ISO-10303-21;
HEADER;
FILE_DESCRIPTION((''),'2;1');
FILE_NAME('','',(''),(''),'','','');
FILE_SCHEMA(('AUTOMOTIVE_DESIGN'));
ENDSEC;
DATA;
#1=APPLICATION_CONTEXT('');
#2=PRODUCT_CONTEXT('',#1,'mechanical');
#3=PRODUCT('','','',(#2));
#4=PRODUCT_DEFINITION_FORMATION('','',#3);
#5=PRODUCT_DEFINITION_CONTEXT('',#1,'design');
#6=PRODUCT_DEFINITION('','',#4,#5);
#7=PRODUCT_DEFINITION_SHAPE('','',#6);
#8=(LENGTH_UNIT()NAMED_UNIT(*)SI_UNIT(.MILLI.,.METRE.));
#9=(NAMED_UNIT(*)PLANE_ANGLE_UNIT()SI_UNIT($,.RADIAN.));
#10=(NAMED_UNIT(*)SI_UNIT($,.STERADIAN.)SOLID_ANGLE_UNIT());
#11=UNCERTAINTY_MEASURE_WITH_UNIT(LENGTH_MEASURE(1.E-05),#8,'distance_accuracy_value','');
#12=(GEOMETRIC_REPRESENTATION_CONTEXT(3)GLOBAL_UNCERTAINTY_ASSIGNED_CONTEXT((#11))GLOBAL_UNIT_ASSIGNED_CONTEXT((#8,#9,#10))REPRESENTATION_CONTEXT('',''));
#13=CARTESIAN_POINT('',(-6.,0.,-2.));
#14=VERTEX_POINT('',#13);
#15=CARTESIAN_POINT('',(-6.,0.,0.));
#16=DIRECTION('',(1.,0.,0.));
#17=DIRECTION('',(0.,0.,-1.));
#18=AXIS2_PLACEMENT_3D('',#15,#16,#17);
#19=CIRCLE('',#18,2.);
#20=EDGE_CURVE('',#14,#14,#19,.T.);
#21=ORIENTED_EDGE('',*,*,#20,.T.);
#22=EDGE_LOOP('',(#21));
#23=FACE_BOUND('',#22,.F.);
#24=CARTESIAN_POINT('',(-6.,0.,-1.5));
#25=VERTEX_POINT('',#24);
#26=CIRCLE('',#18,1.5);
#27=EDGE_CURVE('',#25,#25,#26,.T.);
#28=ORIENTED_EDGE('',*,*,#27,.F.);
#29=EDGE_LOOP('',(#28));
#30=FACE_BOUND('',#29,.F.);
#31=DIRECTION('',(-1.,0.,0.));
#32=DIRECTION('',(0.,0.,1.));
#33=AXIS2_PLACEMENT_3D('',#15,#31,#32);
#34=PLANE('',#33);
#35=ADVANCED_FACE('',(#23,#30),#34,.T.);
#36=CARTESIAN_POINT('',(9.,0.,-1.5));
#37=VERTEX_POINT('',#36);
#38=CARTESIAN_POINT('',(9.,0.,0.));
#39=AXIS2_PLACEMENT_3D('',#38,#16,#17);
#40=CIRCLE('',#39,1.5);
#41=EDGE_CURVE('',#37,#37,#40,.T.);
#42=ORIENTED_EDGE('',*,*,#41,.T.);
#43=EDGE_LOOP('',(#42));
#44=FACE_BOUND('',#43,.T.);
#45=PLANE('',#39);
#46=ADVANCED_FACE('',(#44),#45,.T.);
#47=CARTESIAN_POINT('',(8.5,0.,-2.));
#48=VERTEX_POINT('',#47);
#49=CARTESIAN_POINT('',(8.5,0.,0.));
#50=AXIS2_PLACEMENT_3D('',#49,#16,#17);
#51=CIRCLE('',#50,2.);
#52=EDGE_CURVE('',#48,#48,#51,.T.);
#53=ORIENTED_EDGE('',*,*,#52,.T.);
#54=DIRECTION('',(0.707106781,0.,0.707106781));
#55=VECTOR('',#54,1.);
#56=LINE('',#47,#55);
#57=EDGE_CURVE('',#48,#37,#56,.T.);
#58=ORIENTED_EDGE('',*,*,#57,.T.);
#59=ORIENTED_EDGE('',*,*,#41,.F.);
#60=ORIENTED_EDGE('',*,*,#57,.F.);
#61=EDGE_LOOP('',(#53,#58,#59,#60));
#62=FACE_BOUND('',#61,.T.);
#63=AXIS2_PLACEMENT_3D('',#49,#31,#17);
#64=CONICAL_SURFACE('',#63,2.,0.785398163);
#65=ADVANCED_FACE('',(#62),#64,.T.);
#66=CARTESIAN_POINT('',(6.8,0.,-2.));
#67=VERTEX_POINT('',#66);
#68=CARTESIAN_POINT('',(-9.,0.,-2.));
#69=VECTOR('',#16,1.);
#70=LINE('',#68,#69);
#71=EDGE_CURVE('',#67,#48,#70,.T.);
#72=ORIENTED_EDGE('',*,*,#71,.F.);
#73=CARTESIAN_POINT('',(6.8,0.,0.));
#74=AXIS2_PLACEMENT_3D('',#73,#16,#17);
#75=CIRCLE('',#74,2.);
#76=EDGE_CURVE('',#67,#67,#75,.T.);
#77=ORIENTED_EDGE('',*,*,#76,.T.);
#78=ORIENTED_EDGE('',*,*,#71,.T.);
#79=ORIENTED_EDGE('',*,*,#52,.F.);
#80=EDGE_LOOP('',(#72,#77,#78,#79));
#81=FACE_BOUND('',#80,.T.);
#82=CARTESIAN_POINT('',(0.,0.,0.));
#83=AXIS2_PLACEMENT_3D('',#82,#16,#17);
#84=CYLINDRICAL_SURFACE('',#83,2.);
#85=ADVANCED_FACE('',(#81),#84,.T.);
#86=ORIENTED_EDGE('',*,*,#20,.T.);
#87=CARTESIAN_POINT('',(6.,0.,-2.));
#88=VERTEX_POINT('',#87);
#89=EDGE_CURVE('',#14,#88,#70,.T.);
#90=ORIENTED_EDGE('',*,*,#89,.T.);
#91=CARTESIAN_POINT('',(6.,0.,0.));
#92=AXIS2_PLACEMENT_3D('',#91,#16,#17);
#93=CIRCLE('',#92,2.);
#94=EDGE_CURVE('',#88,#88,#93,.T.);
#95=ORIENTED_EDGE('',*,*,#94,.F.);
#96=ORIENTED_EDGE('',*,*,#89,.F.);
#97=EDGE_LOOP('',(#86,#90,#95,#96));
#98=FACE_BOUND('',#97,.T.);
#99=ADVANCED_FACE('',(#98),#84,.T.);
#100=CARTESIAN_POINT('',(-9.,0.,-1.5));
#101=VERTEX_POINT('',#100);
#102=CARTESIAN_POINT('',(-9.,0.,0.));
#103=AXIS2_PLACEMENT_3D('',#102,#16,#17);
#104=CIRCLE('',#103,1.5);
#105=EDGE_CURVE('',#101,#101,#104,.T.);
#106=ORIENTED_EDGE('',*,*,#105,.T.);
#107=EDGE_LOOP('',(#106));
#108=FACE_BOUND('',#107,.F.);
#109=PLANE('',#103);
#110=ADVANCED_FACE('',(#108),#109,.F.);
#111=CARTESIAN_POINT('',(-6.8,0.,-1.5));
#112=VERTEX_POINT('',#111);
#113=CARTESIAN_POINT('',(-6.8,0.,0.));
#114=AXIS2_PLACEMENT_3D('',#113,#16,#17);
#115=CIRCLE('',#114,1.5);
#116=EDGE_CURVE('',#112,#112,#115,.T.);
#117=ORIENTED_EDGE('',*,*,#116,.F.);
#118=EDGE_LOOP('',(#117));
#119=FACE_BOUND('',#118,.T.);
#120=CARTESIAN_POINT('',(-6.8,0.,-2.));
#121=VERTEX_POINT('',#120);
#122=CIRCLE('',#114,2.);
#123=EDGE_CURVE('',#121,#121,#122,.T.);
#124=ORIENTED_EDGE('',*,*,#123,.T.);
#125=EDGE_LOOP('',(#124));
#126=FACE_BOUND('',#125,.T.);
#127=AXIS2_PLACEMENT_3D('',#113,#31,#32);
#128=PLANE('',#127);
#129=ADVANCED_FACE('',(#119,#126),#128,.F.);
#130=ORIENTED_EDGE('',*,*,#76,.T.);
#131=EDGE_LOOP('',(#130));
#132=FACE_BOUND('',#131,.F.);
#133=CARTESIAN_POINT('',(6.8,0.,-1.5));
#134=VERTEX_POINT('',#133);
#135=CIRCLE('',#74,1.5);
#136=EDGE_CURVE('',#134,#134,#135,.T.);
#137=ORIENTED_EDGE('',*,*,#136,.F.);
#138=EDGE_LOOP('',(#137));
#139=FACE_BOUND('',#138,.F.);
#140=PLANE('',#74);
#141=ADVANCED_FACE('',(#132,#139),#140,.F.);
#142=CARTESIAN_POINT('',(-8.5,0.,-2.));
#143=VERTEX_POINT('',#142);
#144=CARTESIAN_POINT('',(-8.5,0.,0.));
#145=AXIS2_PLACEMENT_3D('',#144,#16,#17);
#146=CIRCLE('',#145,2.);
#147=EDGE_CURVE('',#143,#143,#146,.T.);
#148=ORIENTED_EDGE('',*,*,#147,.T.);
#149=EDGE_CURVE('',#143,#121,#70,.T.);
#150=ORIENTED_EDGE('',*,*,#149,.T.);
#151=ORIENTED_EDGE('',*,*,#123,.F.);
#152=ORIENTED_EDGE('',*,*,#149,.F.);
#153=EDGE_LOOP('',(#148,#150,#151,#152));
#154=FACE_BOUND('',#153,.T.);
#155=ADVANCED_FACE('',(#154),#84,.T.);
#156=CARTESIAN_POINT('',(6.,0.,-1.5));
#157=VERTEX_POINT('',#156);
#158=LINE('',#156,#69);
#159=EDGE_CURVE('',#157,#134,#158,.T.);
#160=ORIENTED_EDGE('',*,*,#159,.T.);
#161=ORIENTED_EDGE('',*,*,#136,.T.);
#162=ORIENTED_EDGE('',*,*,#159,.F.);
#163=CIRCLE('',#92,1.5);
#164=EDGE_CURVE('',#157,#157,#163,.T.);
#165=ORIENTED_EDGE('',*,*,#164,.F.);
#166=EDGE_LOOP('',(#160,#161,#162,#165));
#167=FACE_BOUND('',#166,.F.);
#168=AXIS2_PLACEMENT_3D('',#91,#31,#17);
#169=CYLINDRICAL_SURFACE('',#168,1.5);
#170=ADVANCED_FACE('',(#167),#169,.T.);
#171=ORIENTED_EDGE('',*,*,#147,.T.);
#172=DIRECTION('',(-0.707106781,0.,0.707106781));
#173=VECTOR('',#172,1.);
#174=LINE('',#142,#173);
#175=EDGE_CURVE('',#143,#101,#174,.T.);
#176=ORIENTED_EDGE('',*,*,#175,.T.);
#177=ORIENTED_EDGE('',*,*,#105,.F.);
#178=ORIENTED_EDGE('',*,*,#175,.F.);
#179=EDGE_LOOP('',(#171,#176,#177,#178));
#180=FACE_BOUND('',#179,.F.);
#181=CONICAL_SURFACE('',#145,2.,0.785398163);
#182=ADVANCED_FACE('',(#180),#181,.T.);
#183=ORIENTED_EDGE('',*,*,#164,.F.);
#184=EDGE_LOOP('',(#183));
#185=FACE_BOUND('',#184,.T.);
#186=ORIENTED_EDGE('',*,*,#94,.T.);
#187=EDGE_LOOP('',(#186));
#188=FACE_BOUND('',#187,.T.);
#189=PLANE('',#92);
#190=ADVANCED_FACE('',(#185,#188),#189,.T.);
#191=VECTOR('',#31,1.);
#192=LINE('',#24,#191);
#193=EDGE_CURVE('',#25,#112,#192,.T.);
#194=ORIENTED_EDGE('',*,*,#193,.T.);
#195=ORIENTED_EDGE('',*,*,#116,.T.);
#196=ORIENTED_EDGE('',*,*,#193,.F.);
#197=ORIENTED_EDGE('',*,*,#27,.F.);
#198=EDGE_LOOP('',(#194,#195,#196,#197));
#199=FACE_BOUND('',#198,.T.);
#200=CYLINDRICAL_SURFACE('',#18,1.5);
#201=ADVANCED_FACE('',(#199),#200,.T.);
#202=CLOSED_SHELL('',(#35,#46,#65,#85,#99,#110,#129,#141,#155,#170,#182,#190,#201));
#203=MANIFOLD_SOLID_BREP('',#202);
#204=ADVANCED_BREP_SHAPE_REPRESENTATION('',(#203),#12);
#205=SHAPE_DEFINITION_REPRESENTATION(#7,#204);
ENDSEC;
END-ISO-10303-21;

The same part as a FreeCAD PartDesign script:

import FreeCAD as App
import Part
import Sketcher

V = App.Vector


def edges_at(feature, points):
    """Names of the edges that pass closest to the given points."""
    edges = feature.Shape.Edges
    near = lambda p: min(range(len(edges)), key=lambda i: edges[i].distToShape(Part.Vertex(*p))[0])
    return sorted({f"Edge{near(p) + 1}" for p in points})

doc = App.newDocument("Part")
body = doc.addObject("PartDesign::Body", "Body")

# Sketch on YZ plane
sketch1 = body.newObject("Sketcher::SketchObject", "Sketch")
sketch1.AttachmentSupport = (doc.getObject("YZ_Plane"), [""])
sketch1.MapMode = "FlatFace"
sketch1.addGeometry(Part.Circle(V(0, 0, 0), V(0, 0, 1), 2), False)
sketch1.addConstraint([
    Sketcher.Constraint("Coincident", 0, 3, -1, 1),
    Sketcher.Constraint("Diameter", 0, 4.0),
])
pad1 = body.newObject("PartDesign::Pad", "Pad")
pad1.Profile = sketch1
pad1.Length = 18
pad1.Midplane = True
doc.recompute()

chamfer = body.newObject("PartDesign::Chamfer", "Chamfer")
chamfer.Base = (pad1, edges_at(pad1, [(-9, 0, 2), (9, 0, 2)]))
chamfer.Size = 0.5

# Sketch on YZ plane
sketch2 = body.newObject("Sketcher::SketchObject", "Sketch001")
sketch2.AttachmentSupport = (doc.getObject("YZ_Plane"), [""])
sketch2.MapMode = "FlatFace"
sketch2.AttachmentOffset = App.Placement(V(0, 0, 6), App.Rotation())
sketch2.addGeometry([
    Part.Circle(V(0, 0, 0), V(0, 0, 1), 2),
    Part.Circle(V(0, 0, 0), V(0, 0, 1), 1.5),
], False)
sketch2.addConstraint([
    Sketcher.Constraint("Coincident", 0, 3, -1, 1),
    Sketcher.Constraint("Coincident", 1, 3, -1, 1),
    Sketcher.Constraint("Diameter", 0, 4.0),
    Sketcher.Constraint("Diameter", 1, 3.0),
])
pocket1 = body.newObject("PartDesign::Pocket", "Pocket")
pocket1.Profile = sketch2
pocket1.Length = 0.8
pocket1.Reversed = True
doc.recompute()

mirrored = body.newObject("PartDesign::Mirrored", "Mirrored")
mirrored.Originals = [pocket1]
mirrored.MirrorPlane = (doc.getObject("YZ_Plane"), [""])
body.Tip = mirrored

doc.recompute()
